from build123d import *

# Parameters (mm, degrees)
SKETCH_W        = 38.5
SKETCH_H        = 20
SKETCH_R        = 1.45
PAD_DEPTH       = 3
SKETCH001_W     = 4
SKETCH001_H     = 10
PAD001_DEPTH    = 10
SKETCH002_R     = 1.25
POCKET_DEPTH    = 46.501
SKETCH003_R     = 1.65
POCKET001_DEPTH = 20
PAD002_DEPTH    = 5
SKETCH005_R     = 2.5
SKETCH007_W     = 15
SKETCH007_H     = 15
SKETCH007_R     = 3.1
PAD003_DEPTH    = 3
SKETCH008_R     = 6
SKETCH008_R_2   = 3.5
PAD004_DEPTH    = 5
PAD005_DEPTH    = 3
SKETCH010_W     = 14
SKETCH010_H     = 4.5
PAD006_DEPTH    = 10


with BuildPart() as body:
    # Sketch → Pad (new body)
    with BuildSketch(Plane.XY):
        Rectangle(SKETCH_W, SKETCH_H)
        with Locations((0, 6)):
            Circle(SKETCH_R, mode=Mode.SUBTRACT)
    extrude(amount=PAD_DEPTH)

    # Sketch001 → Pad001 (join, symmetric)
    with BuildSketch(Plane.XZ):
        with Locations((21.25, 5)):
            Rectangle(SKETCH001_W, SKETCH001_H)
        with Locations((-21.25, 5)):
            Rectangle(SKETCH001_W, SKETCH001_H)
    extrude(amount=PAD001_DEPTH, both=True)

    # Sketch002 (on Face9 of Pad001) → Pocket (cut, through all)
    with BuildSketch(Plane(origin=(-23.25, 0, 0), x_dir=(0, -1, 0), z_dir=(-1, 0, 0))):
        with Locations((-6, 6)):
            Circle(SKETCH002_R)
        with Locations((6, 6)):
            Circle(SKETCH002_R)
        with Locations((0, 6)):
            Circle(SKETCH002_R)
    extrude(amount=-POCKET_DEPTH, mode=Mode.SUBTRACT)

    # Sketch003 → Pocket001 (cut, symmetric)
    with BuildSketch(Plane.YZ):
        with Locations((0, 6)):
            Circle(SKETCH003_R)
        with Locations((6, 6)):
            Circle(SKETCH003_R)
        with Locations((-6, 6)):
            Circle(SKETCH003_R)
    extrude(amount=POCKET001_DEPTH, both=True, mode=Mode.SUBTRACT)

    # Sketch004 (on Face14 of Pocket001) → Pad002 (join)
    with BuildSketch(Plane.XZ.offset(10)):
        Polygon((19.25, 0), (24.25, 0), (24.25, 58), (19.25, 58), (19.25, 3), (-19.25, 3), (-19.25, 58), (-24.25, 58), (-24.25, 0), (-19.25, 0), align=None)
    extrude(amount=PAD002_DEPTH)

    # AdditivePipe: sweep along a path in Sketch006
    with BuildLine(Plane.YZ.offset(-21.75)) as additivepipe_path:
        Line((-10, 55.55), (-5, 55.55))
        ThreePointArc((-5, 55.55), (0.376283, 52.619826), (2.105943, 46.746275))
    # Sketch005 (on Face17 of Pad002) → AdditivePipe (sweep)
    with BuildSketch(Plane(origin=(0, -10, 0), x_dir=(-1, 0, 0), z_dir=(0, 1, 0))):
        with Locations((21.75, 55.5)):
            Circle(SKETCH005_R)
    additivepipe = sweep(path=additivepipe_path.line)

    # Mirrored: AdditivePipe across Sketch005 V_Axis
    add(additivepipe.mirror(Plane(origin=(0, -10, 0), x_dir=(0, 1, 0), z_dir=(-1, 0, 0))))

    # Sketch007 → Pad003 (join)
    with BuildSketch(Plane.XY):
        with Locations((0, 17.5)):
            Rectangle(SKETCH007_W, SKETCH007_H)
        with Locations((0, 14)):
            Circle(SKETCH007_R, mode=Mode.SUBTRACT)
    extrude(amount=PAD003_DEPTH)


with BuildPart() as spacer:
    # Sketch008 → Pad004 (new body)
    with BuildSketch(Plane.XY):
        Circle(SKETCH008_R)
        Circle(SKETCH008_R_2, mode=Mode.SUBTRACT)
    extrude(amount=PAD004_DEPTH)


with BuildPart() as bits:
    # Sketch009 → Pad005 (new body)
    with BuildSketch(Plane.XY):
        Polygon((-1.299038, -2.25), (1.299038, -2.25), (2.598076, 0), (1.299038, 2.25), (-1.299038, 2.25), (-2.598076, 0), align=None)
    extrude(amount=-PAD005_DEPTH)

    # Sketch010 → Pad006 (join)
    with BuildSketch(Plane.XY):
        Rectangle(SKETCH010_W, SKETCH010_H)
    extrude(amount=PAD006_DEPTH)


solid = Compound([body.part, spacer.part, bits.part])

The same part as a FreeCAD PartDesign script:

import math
import FreeCAD as App
import Part
import Sketcher
Q = App.Units.Quantity


def add_polygon(sketch, points):
    """Adds a closed chain of lines whose ends are joined by coincident constraints."""
    first, n = sketch.GeometryCount, len(points)
    for a, b in zip(points, points[1:] + points[:1]):
        sketch.addGeometry(Part.LineSegment(App.Vector(*a, 0), App.Vector(*b, 0)), False)
    for i in range(n):
        sketch.addConstraint(Sketcher.Constraint("Coincident", first + i, 2, first + (i + 1) % n, 1))

doc = App.newDocument("Part")
body = doc.addObject("PartDesign::Body", "Body")

# Sketch on XY plane
sketch1 = body.newObject("Sketcher::SketchObject", "Sketch")
sketch1.AttachmentSupport = (doc.getObject("XY_Plane"), [""])
sketch1.MapMode = "FlatFace"
add_polygon(sketch1, [(-19.2, 10), (-19.2, -10), (19.2, -10), (19.2, 10)])  # lines 0-3
sketch1.addGeometry(Part.Circle(App.Vector(0, 6, 0), App.Vector(0, 0, 1), 1.4), False)  # 4
sketch1.addConstraint(Sketcher.Constraint("Vertical", 0))
sketch1.addConstraint(Sketcher.Constraint("Horizontal", 1))
sketch1.addConstraint(Sketcher.Constraint("Vertical", 2))
sketch1.addConstraint(Sketcher.Constraint("Horizontal", 3))
sketch1.addConstraint(Sketcher.Constraint("Symmetric", 0, 2, 2, 2, -1, 1))
sketch1.addConstraint(Sketcher.Constraint("PointOnObject", 4, 3, -2))
sketch1.addConstraint(Sketcher.Constraint("Diameter", 4, Q("2.9 mm")))
sketch1.addConstraint(Sketcher.Constraint("DistanceY", 0, 2, 0, 1, Q("20 mm")))
sketch1.addConstraint(Sketcher.Constraint("DistanceX", 1, 1, 1, 2, Q("38.5 mm")))
sketch1.addConstraint(Sketcher.Constraint("DistanceY", -1, 1, 4, 3, Q("6 mm")))
pad1 = body.newObject("PartDesign::Pad", "Pad")
pad1.Profile = sketch1
pad1.Length = 3

# Sketch on XZ plane
sketch2 = body.newObject("Sketcher::SketchObject", "Sketch001")
sketch2.AttachmentSupport = (doc.getObject("XZ_Plane"), [""])
sketch2.MapMode = "FlatFace"
add_polygon(sketch2, [(19.2, 10), (19.2, 0), (23.2, 0), (23.2, 10)])  # lines 0-3
add_polygon(sketch2, [(-23.2, 10), (-23.2, 0), (-19.2, 0), (-19.2, 10)])  # lines 4-7
sketch2.addConstraint(Sketcher.Constraint("Vertical", 0))
sketch2.addConstraint(Sketcher.Constraint("Horizontal", 1))
sketch2.addConstraint(Sketcher.Constraint("Vertical", 2))
sketch2.addConstraint(Sketcher.Constraint("Horizontal", 3))
sketch2.addConstraint(Sketcher.Constraint("Vertical", 4))
sketch2.addConstraint(Sketcher.Constraint("Horizontal", 5))
sketch2.addConstraint(Sketcher.Constraint("Vertical", 6))
sketch2.addConstraint(Sketcher.Constraint("Horizontal", 7))
sketch2.addConstraint(Sketcher.Constraint("Symmetric", 1, 2, 4, 2, -1, 1))
sketch2.addConstraint(Sketcher.Constraint("Symmetric", 0, 2, 5, 2, -2))
sketch2.addConstraint(Sketcher.Constraint("Horizontal", 3, 2, 6, 2))
sketch2.addConstraint(Sketcher.Constraint("DistanceX", 1, 1, 1, 2, Q("4 mm")))
sketch2.addConstraint(Sketcher.Constraint("DistanceY", 0, 2, 0, 1, Q("10 mm")))
sketch2.addConstraint(Sketcher.Constraint("DistanceX", 4, 2, 0, 2, Q("42.5 mm")))
pad2 = body.newObject("PartDesign::Pad", "Pad001")
pad2.Profile = sketch2
pad2.Length = 20
pad2.Midplane = True

# Sketch on YZ plane
sketch3 = body.newObject("Sketcher::SketchObject", "Sketch002")
sketch3.AttachmentSupport = (doc.getObject("YZ_Plane"), [""])
sketch3.MapMode = "FlatFace"
sketch3.AttachmentOffset = App.Placement(App.Vector(0, 0, -23.25), App.Rotation())
sketch3.addGeometry(Part.Circle(App.Vector(6, 6, 0), App.Vector(0, 0, 1), 1.2), False)
sketch3.addGeometry(Part.Circle(App.Vector(-6, 6, 0), App.Vector(0, 0, 1), 1.2), False)
sketch3.addGeometry(Part.Circle(App.Vector(0, 6, 0), App.Vector(0, 0, 1), 1.2), False)
sketch3.addConstraint(Sketcher.Constraint("Equal", 0, 1))
sketch3.addConstraint(Sketcher.Constraint("Equal", 1, 2))
sketch3.addConstraint(Sketcher.Constraint("Symmetric", 0, 3, 1, 3, -2))
sketch3.addConstraint(Sketcher.Constraint("PointOnObject", 2, 3, -2))
sketch3.addConstraint(Sketcher.Constraint("Horizontal", 1, 3, 2, 3))
sketch3.addConstraint(Sketcher.Constraint("Diameter", 0, Q("2.5 mm")))
sketch3.addConstraint(Sketcher.Constraint("DistanceX", -1, 1, 0, 3, Q("6 mm")))
sketch3.addConstraint(Sketcher.Constraint("DistanceY", -1, 1, 0, 3, Q("6 mm")))
pocket1 = body.newObject("PartDesign::Pocket", "Pocket")
pocket1.Profile = sketch3
pocket1.Type = "ThroughAll"
pocket1.Reversed = True

# Sketch on YZ plane
sketch4 = body.newObject("Sketcher::SketchObject", "Sketch003")
sketch4.AttachmentSupport = (doc.getObject("YZ_Plane"), [""])
sketch4.MapMode = "FlatFace"
sketch4.addGeometry(Part.Circle(App.Vector(0, 6, 0), App.Vector(0, 0, 1), 1.6), False)
sketch4.addGeometry(Part.Circle(App.Vector(6, 6, 0), App.Vector(0, 0, 1), 1.6), False)
sketch4.addGeometry(Part.Circle(App.Vector(-6, 6, 0), App.Vector(0, 0, 1), 1.6), False)
sketch4.addConstraint(Sketcher.Constraint("Equal", 0, 1))
sketch4.addConstraint(Sketcher.Constraint("Equal", 1, 2))
sketch4.addConstraint(Sketcher.Constraint("Symmetric", 1, 3, 2, 3, -2))
sketch4.addConstraint(Sketcher.Constraint("PointOnObject", 0, 3, -2))
sketch4.addConstraint(Sketcher.Constraint("Horizontal", 0, 3, 1, 3))
sketch4.addConstraint(Sketcher.Constraint("Diameter", 0, Q("3.3 mm")))
sketch4.addConstraint(Sketcher.Constraint("DistanceY", -1, 1, 0, 3, Q("6 mm")))
sketch4.addConstraint(Sketcher.Constraint("DistanceX", -1, 1, 1, 3, Q("6 mm")))
pocket2 = body.newObject("PartDesign::Pocket", "Pocket001")
pocket2.Profile = sketch4
pocket2.Length = 40
pocket2.Midplane = True

# Sketch on XZ plane
sketch5 = body.newObject("Sketcher::SketchObject", "Sketch004")
sketch5.AttachmentSupport = (doc.getObject("XZ_Plane"), [""])
sketch5.MapMode = "FlatFace"
sketch5.AttachmentOffset = App.Placement(App.Vector(0, 0, 10), App.Rotation())
add_polygon(sketch5, [(24, 0), (24, 58), (19, 58), (19, 3), (-19, 3), (-19, 58), (-24, 58), (-24, 0)])  # lines 0-7
sketch5.addConstraint(Sketcher.Constraint("Vertical", 0))
sketch5.addConstraint(Sketcher.Constraint("Horizontal", 1))
sketch5.addConstraint(Sketcher.Constraint("Vertical", 2))
sketch5.addConstraint(Sketcher.Constraint("Horizontal", 3))
sketch5.addConstraint(Sketcher.Constraint("Vertical", 4))
sketch5.addConstraint(Sketcher.Constraint("Horizontal", 5))
sketch5.addConstraint(Sketcher.Constraint("Vertical", 6))
sketch5.addConstraint(Sketcher.Constraint("Horizontal", 7))
sketch5.addConstraint(Sketcher.Constraint("Symmetric", 6, 2, 7, 2, -1, 1))
sketch5.addConstraint(Sketcher.Constraint("Symmetric", 1, 2, 4, 2, -2))
sketch5.addConstraint(Sketcher.Constraint("DistanceX", 1, 2, 1, 1, Q("5 mm")))
sketch5.addConstraint(Sketcher.Constraint("DistanceY", 0, 1, 0, 2, Q("58 mm")))
sketch5.addConstraint(Sketcher.Constraint("DistanceY", 2, 2, 2, 1, Q("55 mm")))
sketch5.addConstraint(Sketcher.Constraint("DistanceX", 3, 2, 3, 1, Q("38.5 mm")))
pad3 = body.newObject("PartDesign::Pad", "Pad002")
pad3.Profile = sketch5
pad3.Length = 5

# Sketch on XZ plane
sketch6 = body.newObject("Sketcher::SketchObject", "Sketch005")
sketch6.AttachmentSupport = (doc.getObject("XZ_Plane"), [""])
sketch6.MapMode = "FlatFace"
sketch6.AttachmentOffset = App.Placement(App.Vector(0, 0, 10), App.Rotation())
sketch6.addGeometry(Part.Circle(App.Vector(-21.8, 55.5, 0), App.Vector(0, 0, 1), 2.5), False)
sketch6.addConstraint(Sketcher.Constraint("Diameter", 0, Q("5 mm")))
sketch6.addConstraint(Sketcher.Constraint("DistanceY", -1, 1, 0, 3, Q("55.5 mm")))
sketch6.addConstraint(Sketcher.Constraint("DistanceX", 0, 3, -1, 1, Q("21.75 mm")))

# Sketch on YZ plane
sketch7 = body.newObject("Sketcher::SketchObject", "Sketch006")
sketch7.AttachmentSupport = (doc.getObject("YZ_Plane"), [""])
sketch7.MapMode = "FlatFace"
sketch7.AttachmentOffset = App.Placement(App.Vector(0, 0, -21.75), App.Rotation())
sketch7.addGeometry(Part.LineSegment(App.Vector(-10, 56, 0), App.Vector(-5, 56, 0)), False)
sketch7.addGeometry(Part.ArcOfCircle(Part.Circle(App.Vector(-6, 48, 0), App.Vector(0, 0, 1), 8), math.radians(-6), math.radians(84)), False)
sketch7.addConstraint(Sketcher.Constraint("Coincident", 0, 2, 1, 2))
sketch7.addConstraint(Sketcher.Constraint("Horizontal", 0))
sketch7.addConstraint(Sketcher.Constraint("Radius", 1, Q("8 mm")))
sketch7.addConstraint(Sketcher.Constraint("DistanceX", 0, 1, 0, 2, Q("5 mm")))
sketch7.addConstraint(Sketcher.Constraint("DistanceX", 0, 1, -1, 1, Q("10 mm")))
sketch7.addConstraint(Sketcher.Constraint("DistanceY", -1, 1, 0, 1, Q("55.55 mm")))
sketch7.addConstraint(Sketcher.Constraint("DistanceX", 1, 3, -1, 1, Q("5.848891 mm")))
sketch7.addConstraint(Sketcher.Constraint("DistanceY", 1, 1, 1, 3, Q("0.848891 mm")))
doc.recompute()

additivepipe = body.newObject("PartDesign::AdditivePipe", "AdditivePipe")
additivepipe.Profile = sketch6
additivepipe.Spine = (sketch7, ["Edge1", "Edge2"])
doc.recompute()

mirrored = body.newObject("PartDesign::Mirrored", "Mirrored")
mirrored.Originals = [additivepipe]
mirrored.MirrorPlane = (doc.getObject("YZ_Plane"), [""])
body.Tip = mirrored

# Sketch on XY plane
sketch8 = body.newObject("Sketcher::SketchObject", "Sketch007")
sketch8.AttachmentSupport = (doc.getObject("XY_Plane"), [""])
sketch8.MapMode = "FlatFace"
add_polygon(sketch8, [(-7.5, 25), (-7.5, 10), (7.5, 10), (7.5, 25)])  # lines 0-3
sketch8.addGeometry(Part.Circle(App.Vector(0, 14, 0), App.Vector(0, 0, 1), 3.1), False)  # 4
sketch8.addConstraint(Sketcher.Constraint("Vertical", 0))
sketch8.addConstraint(Sketcher.Constraint("Horizontal", 1))
sketch8.addConstraint(Sketcher.Constraint("Vertical", 2))
sketch8.addConstraint(Sketcher.Constraint("Horizontal", 3))
sketch8.addConstraint(Sketcher.Constraint("PointOnObject", 4, 3, -2))
sketch8.addConstraint(Sketcher.Constraint("Equal", 3, 0))
sketch8.addConstraint(Sketcher.Constraint("Diameter", 4, Q("6.2 mm")))
sketch8.addConstraint(Sketcher.Constraint("DistanceX", 1, 1, 1, 2, Q("15 mm")))
sketch8.addConstraint(Sketcher.Constraint("DistanceY", -1, 1, 4, 3, Q("14 mm")))
sketch8.addConstraint(Sketcher.Constraint("DistanceY", -1, 1, 0, 2, Q("10 mm")))
sketch8.addConstraint(Sketcher.Constraint("DistanceX", 0, 2, -1, 1, Q("7.5 mm")))
pad4 = body.newObject("PartDesign::Pad", "Pad003")
pad4.Profile = sketch8
pad4.Length = 3
body2 = doc.addObject("PartDesign::Body", "Body001")

# Sketch on XY plane
sketch9 = body2.newObject("Sketcher::SketchObject", "Sketch008")
sketch9.AttachmentSupport = (doc.getObject("XY_Plane001"), [""])
sketch9.MapMode = "FlatFace"
sketch9.addGeometry(Part.Circle(App.Vector(0, 0, 0), App.Vector(0, 0, 1), 6), False)
sketch9.addGeometry(Part.Circle(App.Vector(0, 0, 0), App.Vector(0, 0, 1), 3.5), False)
sketch9.addConstraint(Sketcher.Constraint("Coincident", 0, 3, -1, 1))
sketch9.addConstraint(Sketcher.Constraint("Coincident", 1, 3, -1, 1))
sketch9.addConstraint(Sketcher.Constraint("Diameter", 0, Q("12 mm")))
sketch9.addConstraint(Sketcher.Constraint("Diameter", 1, Q("7 mm")))
pad5 = body2.newObject("PartDesign::Pad", "Pad004")
pad5.Profile = sketch9
pad5.Length = 5
body3 = doc.addObject("PartDesign::Body", "Body002")

# Sketch on XY plane
sketch10 = body3.newObject("Sketcher::SketchObject", "Sketch009")
sketch10.AttachmentSupport = (doc.getObject("XY_Plane002"), [""])
sketch10.MapMode = "FlatFace"
add_polygon(sketch10, [(-1.3, -2.2), (1.3, -2.2), (2.6, 0), (1.3, 2.2), (-1.3, 2.2), (-2.6, 0)])  # lines 0-5
sketch10.addConstraint(Sketcher.Constraint("Horizontal", 0))
sketch10.addConstraint(Sketcher.Constraint("Horizontal", 3))
sketch10.addConstraint(Sketcher.Constraint("Symmetric", 0, 2, 3, 2, -1, 1))
sketch10.addConstraint(Sketcher.Constraint("Symmetric", 1, 2, 4, 2, -1, 1))
sketch10.addConstraint(Sketcher.Constraint("PointOnObject", 1, 2, -1))
sketch10.addConstraint(Sketcher.Constraint("Parallel", 2, 5))
sketch10.addConstraint(Sketcher.Constraint("Vertical", 0, 2, 2, 2))
sketch10.addConstraint(Sketcher.Constraint("Angle", 1, Q("60.000002 deg")))
sketch10.addConstraint(Sketcher.Constraint("DistanceY", 0, 2, 2, 2, Q("4.5 mm")))
sketch10.addConstraint(Sketcher.Constraint("DistanceX", 0, 1, 0, 2, Q("2.598076 mm")))
pad6 = body3.newObject("PartDesign::Pad", "Pad005")
pad6.Profile = sketch10
pad6.Length = 3
pad6.Reversed = True

# Sketch on XY plane
sketch11 = body3.newObject("Sketcher::SketchObject", "Sketch010")
sketch11.AttachmentSupport = (doc.getObject("XY_Plane002"), [""])
sketch11.MapMode = "FlatFace"
add_polygon(sketch11, [(-7, 2.2), (-7, -2.2), (7, -2.2), (7, 2.2)])  # lines 0-3
sketch11.addConstraint(Sketcher.Constraint("Vertical", 0))
sketch11.addConstraint(Sketcher.Constraint("Horizontal", 1))
sketch11.addConstraint(Sketcher.Constraint("Vertical", 2))
sketch11.addConstraint(Sketcher.Constraint("Horizontal", 3))
sketch11.addConstraint(Sketcher.Constraint("Symmetric", 0, 2, 2, 2, -1, 1))
sketch11.addConstraint(Sketcher.Constraint("DistanceX", 1, 1, 1, 2, Q("14 mm")))
sketch11.addConstraint(Sketcher.Constraint("DistanceY", 0, 2, 0, 1, Q("4.5 mm")))
pad7 = body3.newObject("PartDesign::Pad", "Pad006")
pad7.Profile = sketch11
pad7.Length = 10

doc.recompute()
